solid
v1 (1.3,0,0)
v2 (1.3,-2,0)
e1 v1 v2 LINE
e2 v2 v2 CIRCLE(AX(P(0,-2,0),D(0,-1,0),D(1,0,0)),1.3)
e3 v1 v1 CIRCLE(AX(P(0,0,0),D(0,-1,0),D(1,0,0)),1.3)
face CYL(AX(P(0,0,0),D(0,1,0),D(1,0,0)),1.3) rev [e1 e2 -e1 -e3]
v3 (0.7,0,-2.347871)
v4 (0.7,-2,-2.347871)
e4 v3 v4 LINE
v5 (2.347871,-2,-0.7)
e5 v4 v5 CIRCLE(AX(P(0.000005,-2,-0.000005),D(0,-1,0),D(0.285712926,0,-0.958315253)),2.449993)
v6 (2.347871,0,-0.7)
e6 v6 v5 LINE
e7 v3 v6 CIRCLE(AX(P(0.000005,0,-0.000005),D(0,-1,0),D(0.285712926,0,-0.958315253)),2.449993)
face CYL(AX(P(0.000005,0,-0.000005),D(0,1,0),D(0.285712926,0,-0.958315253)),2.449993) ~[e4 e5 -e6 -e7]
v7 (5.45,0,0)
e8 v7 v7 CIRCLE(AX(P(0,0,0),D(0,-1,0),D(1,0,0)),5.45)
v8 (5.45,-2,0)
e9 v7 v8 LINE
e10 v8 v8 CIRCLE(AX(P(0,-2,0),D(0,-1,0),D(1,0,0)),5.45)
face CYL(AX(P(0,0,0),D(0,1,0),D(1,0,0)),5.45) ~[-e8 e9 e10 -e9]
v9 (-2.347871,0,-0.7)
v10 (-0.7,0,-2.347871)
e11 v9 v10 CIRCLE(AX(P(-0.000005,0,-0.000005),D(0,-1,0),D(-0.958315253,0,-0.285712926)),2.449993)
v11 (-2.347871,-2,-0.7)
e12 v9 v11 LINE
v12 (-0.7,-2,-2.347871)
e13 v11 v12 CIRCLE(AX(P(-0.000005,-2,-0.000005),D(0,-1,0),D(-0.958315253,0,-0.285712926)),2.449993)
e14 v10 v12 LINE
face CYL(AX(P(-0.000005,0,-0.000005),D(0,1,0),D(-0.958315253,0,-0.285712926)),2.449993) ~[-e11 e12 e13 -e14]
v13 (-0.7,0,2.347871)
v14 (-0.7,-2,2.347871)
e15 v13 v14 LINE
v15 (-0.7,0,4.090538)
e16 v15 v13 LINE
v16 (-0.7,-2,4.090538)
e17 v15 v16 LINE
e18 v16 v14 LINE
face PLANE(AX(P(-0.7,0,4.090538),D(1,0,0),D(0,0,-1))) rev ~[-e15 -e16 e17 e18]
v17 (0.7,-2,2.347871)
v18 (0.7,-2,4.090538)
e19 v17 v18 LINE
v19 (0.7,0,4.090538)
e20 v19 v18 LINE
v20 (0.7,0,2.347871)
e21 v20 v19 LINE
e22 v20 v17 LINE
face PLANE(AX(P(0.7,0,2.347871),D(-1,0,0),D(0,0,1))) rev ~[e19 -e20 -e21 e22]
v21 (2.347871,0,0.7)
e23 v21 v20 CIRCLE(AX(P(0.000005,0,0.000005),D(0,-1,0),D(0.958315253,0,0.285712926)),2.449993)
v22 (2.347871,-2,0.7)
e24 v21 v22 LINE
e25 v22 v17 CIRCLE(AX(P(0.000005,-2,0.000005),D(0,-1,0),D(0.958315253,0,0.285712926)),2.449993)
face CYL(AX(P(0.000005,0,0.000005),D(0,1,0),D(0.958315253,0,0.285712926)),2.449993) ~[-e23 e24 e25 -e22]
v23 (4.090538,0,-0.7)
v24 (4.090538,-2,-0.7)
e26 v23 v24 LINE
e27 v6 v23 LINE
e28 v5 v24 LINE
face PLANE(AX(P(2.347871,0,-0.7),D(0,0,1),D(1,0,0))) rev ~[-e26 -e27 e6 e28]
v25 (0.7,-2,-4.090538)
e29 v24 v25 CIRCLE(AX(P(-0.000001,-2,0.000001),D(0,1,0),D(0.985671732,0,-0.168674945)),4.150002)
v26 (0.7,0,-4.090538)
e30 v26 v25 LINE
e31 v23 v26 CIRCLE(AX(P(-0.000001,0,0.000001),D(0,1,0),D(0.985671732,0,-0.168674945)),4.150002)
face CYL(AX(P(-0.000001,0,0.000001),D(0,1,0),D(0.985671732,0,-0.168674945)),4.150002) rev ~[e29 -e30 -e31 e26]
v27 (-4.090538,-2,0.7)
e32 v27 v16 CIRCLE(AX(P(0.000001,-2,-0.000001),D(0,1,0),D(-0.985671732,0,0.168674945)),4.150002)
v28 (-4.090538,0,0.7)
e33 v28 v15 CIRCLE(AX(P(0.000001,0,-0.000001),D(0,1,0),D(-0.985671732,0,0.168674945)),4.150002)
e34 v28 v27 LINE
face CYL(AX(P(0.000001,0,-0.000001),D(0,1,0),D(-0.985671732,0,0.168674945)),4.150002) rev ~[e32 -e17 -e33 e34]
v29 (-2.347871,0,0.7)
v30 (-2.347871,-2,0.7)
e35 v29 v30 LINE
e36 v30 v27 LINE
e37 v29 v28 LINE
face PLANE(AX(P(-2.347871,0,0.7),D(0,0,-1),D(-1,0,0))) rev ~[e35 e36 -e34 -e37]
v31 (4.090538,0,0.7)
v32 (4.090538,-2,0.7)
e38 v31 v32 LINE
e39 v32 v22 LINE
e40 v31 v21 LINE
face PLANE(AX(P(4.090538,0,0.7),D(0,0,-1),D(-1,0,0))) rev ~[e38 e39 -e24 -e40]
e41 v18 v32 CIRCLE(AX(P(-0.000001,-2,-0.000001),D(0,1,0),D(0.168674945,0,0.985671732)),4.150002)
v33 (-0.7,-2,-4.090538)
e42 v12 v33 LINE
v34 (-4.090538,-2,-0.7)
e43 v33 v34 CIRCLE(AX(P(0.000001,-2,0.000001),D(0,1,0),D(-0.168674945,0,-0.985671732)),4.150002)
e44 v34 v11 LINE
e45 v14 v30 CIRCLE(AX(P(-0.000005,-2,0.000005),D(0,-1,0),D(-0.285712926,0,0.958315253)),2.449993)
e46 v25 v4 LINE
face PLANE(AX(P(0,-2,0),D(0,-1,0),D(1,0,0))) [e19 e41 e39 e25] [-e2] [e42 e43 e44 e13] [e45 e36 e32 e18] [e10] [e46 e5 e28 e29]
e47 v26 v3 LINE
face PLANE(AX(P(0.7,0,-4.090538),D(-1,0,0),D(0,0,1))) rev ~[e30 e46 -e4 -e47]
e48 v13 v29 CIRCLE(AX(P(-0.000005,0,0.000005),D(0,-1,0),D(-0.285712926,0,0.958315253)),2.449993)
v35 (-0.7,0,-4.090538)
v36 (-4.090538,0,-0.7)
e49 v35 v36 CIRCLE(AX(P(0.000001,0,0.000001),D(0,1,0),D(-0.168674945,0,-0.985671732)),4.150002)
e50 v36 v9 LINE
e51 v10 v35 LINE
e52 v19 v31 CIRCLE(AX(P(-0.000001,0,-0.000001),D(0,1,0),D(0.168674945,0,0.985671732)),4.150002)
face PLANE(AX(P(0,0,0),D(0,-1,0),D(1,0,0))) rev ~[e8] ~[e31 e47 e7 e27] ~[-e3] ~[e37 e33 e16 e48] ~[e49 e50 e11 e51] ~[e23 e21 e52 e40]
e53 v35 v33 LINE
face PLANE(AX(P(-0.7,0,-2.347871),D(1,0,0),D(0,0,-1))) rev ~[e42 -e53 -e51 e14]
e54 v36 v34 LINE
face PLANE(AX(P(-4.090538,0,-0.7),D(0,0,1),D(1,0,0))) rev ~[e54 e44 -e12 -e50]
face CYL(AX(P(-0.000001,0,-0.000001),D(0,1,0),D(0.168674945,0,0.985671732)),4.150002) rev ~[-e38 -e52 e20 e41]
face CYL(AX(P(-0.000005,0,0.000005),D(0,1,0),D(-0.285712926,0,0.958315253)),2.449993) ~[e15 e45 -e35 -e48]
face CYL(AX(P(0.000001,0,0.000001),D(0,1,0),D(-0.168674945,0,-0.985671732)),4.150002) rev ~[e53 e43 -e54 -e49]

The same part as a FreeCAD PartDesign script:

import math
import FreeCAD as App
import Part
import Sketcher

V = App.Vector

doc = App.newDocument("Part")
body = doc.addObject("PartDesign::Body", "Body")

sketch1 = body.newObject("Sketcher::SketchObject", "Sketch")
sketch1.AttachmentSupport = (doc.getObject("XZ_Plane"), [""])
sketch1.MapMode = "FlatFace"
sketch1.addGeometry(Part.Circle(V(0, 0, 0), V(0, 0, 1), 5.5), False)
sketch1.addGeometry(Part.ArcOfCircle(Part.Circle(V(0, 0, 0), V(0, 0, 1), 4.2), math.radians(10), math.radians(80)), False)
sketch1.addGeometry(Part.LineSegment(V(4.1, 0.7, 0), V(2.3, 0.7, 0)), False)
sketch1.addGeometry(Part.ArcOfCircle(Part.Circle(V(0, 0, 0), V(0, 0, 1), 2.4), math.radians(17), math.radians(73)), False)
sketch1.addGeometry(Part.LineSegment(V(0.7, 2.3, 0), V(0.7, 4.1, 0)), False)
sketch1.addGeometry(Part.ArcOfCircle(Part.Circle(V(0, 0, 0), V(0, 0, 1), 2.4), math.radians(107), math.radians(163)), False)
sketch1.addGeometry(Part.LineSegment(V(-2.3, 0.7, 0), V(-4.1, 0.7, 0)), False)
sketch1.addGeometry(Part.ArcOfCircle(Part.Circle(V(0, 0, 0), V(0, 0, 1), 4.2), math.radians(100), math.radians(170)), False)
sketch1.addGeometry(Part.LineSegment(V(-0.7, 4.1, 0), V(-0.7, 2.3, 0)), False)
sketch1.addGeometry(Part.ArcOfCircle(Part.Circle(V(0, 0, 0), V(0, 0, 1), 4.2), math.radians(-80), math.radians(-10)), False)
sketch1.addGeometry(Part.LineSegment(V(0.7, -4.1, 0), V(0.7, -2.3, 0)), False)
sketch1.addGeometry(Part.ArcOfCircle(Part.Circle(V(0, 0, 0), V(0, 0, 1), 2.4), math.radians(-73), math.radians(-17)), False)
sketch1.addGeometry(Part.LineSegment(V(2.3, -0.7, 0), V(4.1, -0.7, 0)), False)
sketch1.addGeometry(Part.ArcOfCircle(Part.Circle(V(0, 0, 0), V(0, 0, 1), 4.2), math.radians(-170), math.radians(-100)), False)
sketch1.addGeometry(Part.LineSegment(V(-4.1, -0.7, 0), V(-2.3, -0.7, 0)), False)
sketch1.addGeometry(Part.ArcOfCircle(Part.Circle(V(0, 0, 0), V(0, 0, 1), 2.4), math.radians(-163), math.radians(-107)), False)
sketch1.addGeometry(Part.LineSegment(V(-0.7, -2.3, 0), V(-0.7, -4.1, 0)), False)
sketch1.addGeometry(Part.Circle(V(0, 0, 0), V(0, 0, 1), 1.3), False)
sketch1.addConstraint(Sketcher.Constraint("Coincident", 1, 1, 2, 1))
sketch1.addConstraint(Sketcher.Constraint("Coincident", 2, 2, 3, 1))
sketch1.addConstraint(Sketcher.Constraint("Coincident", 3, 2, 4, 1))
sketch1.addConstraint(Sketcher.Constraint("Coincident", 4, 2, 1, 2))
sketch1.addConstraint(Sketcher.Constraint("Coincident", 5, 2, 6, 1))
sketch1.addConstraint(Sketcher.Constraint("Coincident", 6, 2, 7, 2))
sketch1.addConstraint(Sketcher.Constraint("Coincident", 7, 1, 8, 1))
sketch1.addConstraint(Sketcher.Constraint("Coincident", 8, 2, 5, 1))
sketch1.addConstraint(Sketcher.Constraint("Coincident", 9, 1, 10, 1))
sketch1.addConstraint(Sketcher.Constraint("Coincident", 10, 2, 11, 1))
sketch1.addConstraint(Sketcher.Constraint("Coincident", 11, 2, 12, 1))
sketch1.addConstraint(Sketcher.Constraint("Coincident", 12, 2, 9, 2))
sketch1.addConstraint(Sketcher.Constraint("Coincident", 13, 1, 14, 1))
sketch1.addConstraint(Sketcher.Constraint("Coincident", 14, 2, 15, 1))
sketch1.addConstraint(Sketcher.Constraint("Coincident", 15, 2, 16, 1))
sketch1.addConstraint(Sketcher.Constraint("Coincident", 16, 2, 13, 2))
sketch1.addConstraint(Sketcher.Constraint("Horizontal", 2))
sketch1.addConstraint(Sketcher.Constraint("Vertical", 4))
sketch1.addConstraint(Sketcher.Constraint("Horizontal", 6))
sketch1.addConstraint(Sketcher.Constraint("Vertical", 8))
sketch1.addConstraint(Sketcher.Constraint("Vertical", 10))
sketch1.addConstraint(Sketcher.Constraint("Horizontal", 12))
sketch1.addConstraint(Sketcher.Constraint("Horizontal", 14))
sketch1.addConstraint(Sketcher.Constraint("Vertical", 16))
sketch1.addConstraint(Sketcher.Constraint("Coincident", 0, 3, -1, 1))
sketch1.addConstraint(Sketcher.Constraint("Coincident", 1, 3, -1, 1))
sketch1.addConstraint(Sketcher.Constraint("Coincident", 3, 3, -1, 1))
sketch1.addConstraint(Sketcher.Constraint("Coincident", 5, 3, -1, 1))
sketch1.addConstraint(Sketcher.Constraint("Coincident", 7, 3, -1, 1))
sketch1.addConstraint(Sketcher.Constraint("Coincident", 9, 3, -1, 1))
sketch1.addConstraint(Sketcher.Constraint("Coincident", 11, 3, -1, 1))
sketch1.addConstraint(Sketcher.Constraint("Coincident", 13, 3, -1, 1))
sketch1.addConstraint(Sketcher.Constraint("Coincident", 15, 3, -1, 1))
sketch1.addConstraint(Sketcher.Constraint("Coincident", 17, 3, -1, 1))
sketch1.addConstraint(Sketcher.Constraint("Equal", 3, 5))
sketch1.addConstraint(Sketcher.Constraint("Equal", 1, 7))
sketch1.addConstraint(Sketcher.Constraint("Equal", 7, 9))
sketch1.addConstraint(Sketcher.Constraint("Equal", 5, 11))
sketch1.addConstraint(Sketcher.Constraint("Equal", 9, 13))
sketch1.addConstraint(Sketcher.Constraint("Equal", 11, 15))
sketch1.addConstraint(Sketcher.Constraint("Horizontal", 2, 2, 5, 2))
sketch1.addConstraint(Sketcher.Constraint("Horizontal", 4, 2, 7, 1))
sketch1.addConstraint(Sketcher.Constraint("Horizontal", 12, 2, 13, 1))
sketch1.addConstraint(Sketcher.Constraint("Horizontal", 10, 2, 15, 2))
sketch1.addConstraint(Sketcher.Constraint("Vertical", 4, 2, 9, 1))
sketch1.addConstraint(Sketcher.Constraint("Vertical", 2, 2, 11, 2))
sketch1.addConstraint(Sketcher.Constraint("Equal", 14, 4))
sketch1.addConstraint(Sketcher.Constraint("Diameter", 0, 10.9))
sketch1.addConstraint(Sketcher.Constraint("Diameter", 17, 2.6))
sketch1.addConstraint(Sketcher.Constraint("Radius", 1, 4.150002))
sketch1.addConstraint(Sketcher.Constraint("DistanceY", -1, 1, 1, 1, 0.7))
sketch1.addConstraint(Sketcher.Constraint("Radius", 3, 2.449993))
pad1 = body.newObject("PartDesign::Pad", "Pad")
pad1.Profile = sketch1
pad1.Length = 2

doc.recompute()
